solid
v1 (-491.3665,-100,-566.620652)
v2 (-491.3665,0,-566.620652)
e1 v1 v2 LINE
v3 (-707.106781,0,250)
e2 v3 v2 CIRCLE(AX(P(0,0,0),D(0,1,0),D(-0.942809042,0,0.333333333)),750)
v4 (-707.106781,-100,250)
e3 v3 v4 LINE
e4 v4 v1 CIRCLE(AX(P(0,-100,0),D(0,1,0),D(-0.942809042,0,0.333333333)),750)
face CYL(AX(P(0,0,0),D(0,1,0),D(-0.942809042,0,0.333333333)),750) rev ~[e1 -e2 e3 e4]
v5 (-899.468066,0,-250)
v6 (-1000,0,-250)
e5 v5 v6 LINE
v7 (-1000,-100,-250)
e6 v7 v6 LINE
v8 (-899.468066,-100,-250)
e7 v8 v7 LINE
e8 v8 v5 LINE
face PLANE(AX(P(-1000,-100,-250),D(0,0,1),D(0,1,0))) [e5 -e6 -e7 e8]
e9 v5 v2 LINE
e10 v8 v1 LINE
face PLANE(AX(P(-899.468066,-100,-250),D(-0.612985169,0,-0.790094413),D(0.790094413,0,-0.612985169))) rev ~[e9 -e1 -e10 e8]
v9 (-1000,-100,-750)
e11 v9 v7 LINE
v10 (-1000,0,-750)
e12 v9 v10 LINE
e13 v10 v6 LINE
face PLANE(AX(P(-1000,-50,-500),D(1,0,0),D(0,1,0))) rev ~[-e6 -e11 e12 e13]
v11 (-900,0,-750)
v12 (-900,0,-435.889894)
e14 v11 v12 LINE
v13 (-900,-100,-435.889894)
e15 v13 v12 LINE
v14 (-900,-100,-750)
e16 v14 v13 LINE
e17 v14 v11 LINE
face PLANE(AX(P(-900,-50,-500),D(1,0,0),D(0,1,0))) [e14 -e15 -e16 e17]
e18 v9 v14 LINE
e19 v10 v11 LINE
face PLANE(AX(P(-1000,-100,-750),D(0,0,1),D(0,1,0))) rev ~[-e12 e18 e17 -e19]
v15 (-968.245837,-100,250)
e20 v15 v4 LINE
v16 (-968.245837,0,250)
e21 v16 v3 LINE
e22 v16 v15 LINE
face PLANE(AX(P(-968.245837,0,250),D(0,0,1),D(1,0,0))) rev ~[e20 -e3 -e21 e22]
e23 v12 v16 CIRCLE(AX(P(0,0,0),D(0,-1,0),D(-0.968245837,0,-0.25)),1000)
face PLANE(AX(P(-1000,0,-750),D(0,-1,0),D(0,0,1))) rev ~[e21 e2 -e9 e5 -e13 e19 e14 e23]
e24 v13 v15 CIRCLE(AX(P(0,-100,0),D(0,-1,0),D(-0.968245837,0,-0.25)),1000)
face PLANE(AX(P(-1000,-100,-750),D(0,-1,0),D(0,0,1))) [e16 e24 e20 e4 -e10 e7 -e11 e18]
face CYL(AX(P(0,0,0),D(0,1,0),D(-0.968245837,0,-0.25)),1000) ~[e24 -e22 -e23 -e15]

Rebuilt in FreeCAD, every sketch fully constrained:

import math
import FreeCAD as App
import Part
import Sketcher
Q = App.Units.Quantity

doc = App.newDocument("Part")
body = doc.addObject("PartDesign::Body", "Body")

# Sketch on XZ plane
sketch1 = body.newObject("Sketcher::SketchObject", "Sketch")
sketch1.AttachmentSupport = (doc.getObject("XZ_Plane"), [""])
sketch1.MapMode = "FlatFace"
sketch1.addGeometry([
    Part.ArcOfCircle(Part.Circle(App.Vector(0, 0, 0), App.Vector(0, 0, 1), 750), math.radians(-161), math.radians(161)),
    Part.LineSegment(App.Vector(-707, -250, 0), App.Vector(-968, -250, 0)),
    Part.ArcOfCircle(Part.Circle(App.Vector(0, 0, 0), App.Vector(0, 0, 1), 1000), math.radians(-166), math.radians(166)),
    Part.LineSegment(App.Vector(-968, 250, 0), App.Vector(-707, 250, 0)),
], False)
sketch1.addConstraint([
    Sketcher.Constraint("Coincident", 0, 1, 1, 1),
    Sketcher.Constraint("Coincident", 1, 2, 2, 1),
    Sketcher.Constraint("Coincident", 2, 2, 3, 1),
    Sketcher.Constraint("Coincident", 3, 2, 0, 2),
    Sketcher.Constraint("Horizontal", 1),
    Sketcher.Constraint("Horizontal", 3),
    Sketcher.Constraint("Coincident", 0, 3, -1, 1),
    Sketcher.Constraint("Coincident", 2, 3, -1, 1),
    Sketcher.Constraint("Equal", 1, 3),
    Sketcher.Constraint("Radius", 0, Q("750 mm")),
    Sketcher.Constraint("Radius", 2, Q("1000 mm")),
    Sketcher.Constraint("DistanceY", 1, 2, -1, 1, Q("250 mm")),
])
pad1 = body.newObject("PartDesign::Pad", "Pad")
pad1.Profile = sketch1
pad1.Length = 100

# Sketch on YZ plane
sketch2 = body.newObject("Sketcher::SketchObject", "Sketch001")
sketch2.AttachmentSupport = (doc.getObject("YZ_Plane"), [""])
sketch2.MapMode = "FlatFace"
sketch2.AttachmentOffset = App.Placement(App.Vector(0, 0, -1000), App.Rotation())
sketch2.addGeometry([
    Part.LineSegment(App.Vector(-100, -250, 0), App.Vector(-100, -750, 0)),
    Part.LineSegment(App.Vector(-100, -750, 0), App.Vector(0, -750, 0)),
    Part.LineSegment(App.Vector(0, -750, 0), App.Vector(0, -250, 0)),
    Part.LineSegment(App.Vector(0, -250, 0), App.Vector(-100, -250, 0)),
], False)
sketch2.addConstraint([
    Sketcher.Constraint("Coincident", 0, 2, 1, 1),
    Sketcher.Constraint("Coincident", 1, 2, 2, 1),
    Sketcher.Constraint("Coincident", 2, 2, 3, 1),
    Sketcher.Constraint("Coincident", 3, 2, 0, 1),
    Sketcher.Constraint("Vertical", 0),
    Sketcher.Constraint("Horizontal", 1),
    Sketcher.Constraint("Vertical", 2),
    Sketcher.Constraint("Horizontal", 3),
    Sketcher.Constraint("PointOnObject", 1, 2, -2),
    Sketcher.Constraint("DistanceX", 1, 1, 1, 2, Q("100 mm")),
    Sketcher.Constraint("DistanceY", 0, 2, 0, 1, Q("500 mm")),
    Sketcher.Constraint("DistanceY", 0, 2, -1, 1, Q("750 mm")),
])
pad2 = body.newObject("PartDesign::Pad", "Pad001")
pad2.Profile = sketch2
pad2.Length = 100

# Sketch on XZ plane
sketch3 = body.newObject("Sketcher::SketchObject", "Sketch002")
sketch3.AttachmentSupport = (doc.getObject("XZ_Plane"), [""])
sketch3.MapMode = "FlatFace"
sketch3.AttachmentOffset = App.Placement(App.Vector(0, 0, 100), App.Rotation())
sketch3.addGeometry([
    Part.LineSegment(App.Vector(-707, -250, 0), App.Vector(-899, -250, 0)),
    Part.LineSegment(App.Vector(-899, -250, 0), App.Vector(-491, -567, 0)),
    Part.ArcOfCircle(Part.Circle(App.Vector(0, 0, 0), App.Vector(0, 0, 1), 750), math.radians(-161), math.radians(-131)),
], False)
sketch3.addConstraint([
    Sketcher.Constraint("Coincident", 0, 2, 1, 1),
    Sketcher.Constraint("Coincident", 1, 2, 2, 2),
    Sketcher.Constraint("Coincident", 2, 1, 0, 1),
    Sketcher.Constraint("Horizontal", 0),
    Sketcher.Constraint("Coincident", 2, 3, -1, 1),
    Sketcher.Constraint("Radius", 2, Q("750 mm")),
    Sketcher.Constraint("DistanceY", 0, 2, -1, 1, Q("250 mm")),
    Sketcher.Constraint("DistanceX", 1, 2, -1, 1, Q("491.3665 mm")),
    Sketcher.Constraint("Distance", 1, Q("516.522532 mm")),
])
pocket1 = body.newObject("PartDesign::Pocket", "Pocket")
pocket1.Profile = sketch3
pocket1.Length = 100

doc.recompute()
